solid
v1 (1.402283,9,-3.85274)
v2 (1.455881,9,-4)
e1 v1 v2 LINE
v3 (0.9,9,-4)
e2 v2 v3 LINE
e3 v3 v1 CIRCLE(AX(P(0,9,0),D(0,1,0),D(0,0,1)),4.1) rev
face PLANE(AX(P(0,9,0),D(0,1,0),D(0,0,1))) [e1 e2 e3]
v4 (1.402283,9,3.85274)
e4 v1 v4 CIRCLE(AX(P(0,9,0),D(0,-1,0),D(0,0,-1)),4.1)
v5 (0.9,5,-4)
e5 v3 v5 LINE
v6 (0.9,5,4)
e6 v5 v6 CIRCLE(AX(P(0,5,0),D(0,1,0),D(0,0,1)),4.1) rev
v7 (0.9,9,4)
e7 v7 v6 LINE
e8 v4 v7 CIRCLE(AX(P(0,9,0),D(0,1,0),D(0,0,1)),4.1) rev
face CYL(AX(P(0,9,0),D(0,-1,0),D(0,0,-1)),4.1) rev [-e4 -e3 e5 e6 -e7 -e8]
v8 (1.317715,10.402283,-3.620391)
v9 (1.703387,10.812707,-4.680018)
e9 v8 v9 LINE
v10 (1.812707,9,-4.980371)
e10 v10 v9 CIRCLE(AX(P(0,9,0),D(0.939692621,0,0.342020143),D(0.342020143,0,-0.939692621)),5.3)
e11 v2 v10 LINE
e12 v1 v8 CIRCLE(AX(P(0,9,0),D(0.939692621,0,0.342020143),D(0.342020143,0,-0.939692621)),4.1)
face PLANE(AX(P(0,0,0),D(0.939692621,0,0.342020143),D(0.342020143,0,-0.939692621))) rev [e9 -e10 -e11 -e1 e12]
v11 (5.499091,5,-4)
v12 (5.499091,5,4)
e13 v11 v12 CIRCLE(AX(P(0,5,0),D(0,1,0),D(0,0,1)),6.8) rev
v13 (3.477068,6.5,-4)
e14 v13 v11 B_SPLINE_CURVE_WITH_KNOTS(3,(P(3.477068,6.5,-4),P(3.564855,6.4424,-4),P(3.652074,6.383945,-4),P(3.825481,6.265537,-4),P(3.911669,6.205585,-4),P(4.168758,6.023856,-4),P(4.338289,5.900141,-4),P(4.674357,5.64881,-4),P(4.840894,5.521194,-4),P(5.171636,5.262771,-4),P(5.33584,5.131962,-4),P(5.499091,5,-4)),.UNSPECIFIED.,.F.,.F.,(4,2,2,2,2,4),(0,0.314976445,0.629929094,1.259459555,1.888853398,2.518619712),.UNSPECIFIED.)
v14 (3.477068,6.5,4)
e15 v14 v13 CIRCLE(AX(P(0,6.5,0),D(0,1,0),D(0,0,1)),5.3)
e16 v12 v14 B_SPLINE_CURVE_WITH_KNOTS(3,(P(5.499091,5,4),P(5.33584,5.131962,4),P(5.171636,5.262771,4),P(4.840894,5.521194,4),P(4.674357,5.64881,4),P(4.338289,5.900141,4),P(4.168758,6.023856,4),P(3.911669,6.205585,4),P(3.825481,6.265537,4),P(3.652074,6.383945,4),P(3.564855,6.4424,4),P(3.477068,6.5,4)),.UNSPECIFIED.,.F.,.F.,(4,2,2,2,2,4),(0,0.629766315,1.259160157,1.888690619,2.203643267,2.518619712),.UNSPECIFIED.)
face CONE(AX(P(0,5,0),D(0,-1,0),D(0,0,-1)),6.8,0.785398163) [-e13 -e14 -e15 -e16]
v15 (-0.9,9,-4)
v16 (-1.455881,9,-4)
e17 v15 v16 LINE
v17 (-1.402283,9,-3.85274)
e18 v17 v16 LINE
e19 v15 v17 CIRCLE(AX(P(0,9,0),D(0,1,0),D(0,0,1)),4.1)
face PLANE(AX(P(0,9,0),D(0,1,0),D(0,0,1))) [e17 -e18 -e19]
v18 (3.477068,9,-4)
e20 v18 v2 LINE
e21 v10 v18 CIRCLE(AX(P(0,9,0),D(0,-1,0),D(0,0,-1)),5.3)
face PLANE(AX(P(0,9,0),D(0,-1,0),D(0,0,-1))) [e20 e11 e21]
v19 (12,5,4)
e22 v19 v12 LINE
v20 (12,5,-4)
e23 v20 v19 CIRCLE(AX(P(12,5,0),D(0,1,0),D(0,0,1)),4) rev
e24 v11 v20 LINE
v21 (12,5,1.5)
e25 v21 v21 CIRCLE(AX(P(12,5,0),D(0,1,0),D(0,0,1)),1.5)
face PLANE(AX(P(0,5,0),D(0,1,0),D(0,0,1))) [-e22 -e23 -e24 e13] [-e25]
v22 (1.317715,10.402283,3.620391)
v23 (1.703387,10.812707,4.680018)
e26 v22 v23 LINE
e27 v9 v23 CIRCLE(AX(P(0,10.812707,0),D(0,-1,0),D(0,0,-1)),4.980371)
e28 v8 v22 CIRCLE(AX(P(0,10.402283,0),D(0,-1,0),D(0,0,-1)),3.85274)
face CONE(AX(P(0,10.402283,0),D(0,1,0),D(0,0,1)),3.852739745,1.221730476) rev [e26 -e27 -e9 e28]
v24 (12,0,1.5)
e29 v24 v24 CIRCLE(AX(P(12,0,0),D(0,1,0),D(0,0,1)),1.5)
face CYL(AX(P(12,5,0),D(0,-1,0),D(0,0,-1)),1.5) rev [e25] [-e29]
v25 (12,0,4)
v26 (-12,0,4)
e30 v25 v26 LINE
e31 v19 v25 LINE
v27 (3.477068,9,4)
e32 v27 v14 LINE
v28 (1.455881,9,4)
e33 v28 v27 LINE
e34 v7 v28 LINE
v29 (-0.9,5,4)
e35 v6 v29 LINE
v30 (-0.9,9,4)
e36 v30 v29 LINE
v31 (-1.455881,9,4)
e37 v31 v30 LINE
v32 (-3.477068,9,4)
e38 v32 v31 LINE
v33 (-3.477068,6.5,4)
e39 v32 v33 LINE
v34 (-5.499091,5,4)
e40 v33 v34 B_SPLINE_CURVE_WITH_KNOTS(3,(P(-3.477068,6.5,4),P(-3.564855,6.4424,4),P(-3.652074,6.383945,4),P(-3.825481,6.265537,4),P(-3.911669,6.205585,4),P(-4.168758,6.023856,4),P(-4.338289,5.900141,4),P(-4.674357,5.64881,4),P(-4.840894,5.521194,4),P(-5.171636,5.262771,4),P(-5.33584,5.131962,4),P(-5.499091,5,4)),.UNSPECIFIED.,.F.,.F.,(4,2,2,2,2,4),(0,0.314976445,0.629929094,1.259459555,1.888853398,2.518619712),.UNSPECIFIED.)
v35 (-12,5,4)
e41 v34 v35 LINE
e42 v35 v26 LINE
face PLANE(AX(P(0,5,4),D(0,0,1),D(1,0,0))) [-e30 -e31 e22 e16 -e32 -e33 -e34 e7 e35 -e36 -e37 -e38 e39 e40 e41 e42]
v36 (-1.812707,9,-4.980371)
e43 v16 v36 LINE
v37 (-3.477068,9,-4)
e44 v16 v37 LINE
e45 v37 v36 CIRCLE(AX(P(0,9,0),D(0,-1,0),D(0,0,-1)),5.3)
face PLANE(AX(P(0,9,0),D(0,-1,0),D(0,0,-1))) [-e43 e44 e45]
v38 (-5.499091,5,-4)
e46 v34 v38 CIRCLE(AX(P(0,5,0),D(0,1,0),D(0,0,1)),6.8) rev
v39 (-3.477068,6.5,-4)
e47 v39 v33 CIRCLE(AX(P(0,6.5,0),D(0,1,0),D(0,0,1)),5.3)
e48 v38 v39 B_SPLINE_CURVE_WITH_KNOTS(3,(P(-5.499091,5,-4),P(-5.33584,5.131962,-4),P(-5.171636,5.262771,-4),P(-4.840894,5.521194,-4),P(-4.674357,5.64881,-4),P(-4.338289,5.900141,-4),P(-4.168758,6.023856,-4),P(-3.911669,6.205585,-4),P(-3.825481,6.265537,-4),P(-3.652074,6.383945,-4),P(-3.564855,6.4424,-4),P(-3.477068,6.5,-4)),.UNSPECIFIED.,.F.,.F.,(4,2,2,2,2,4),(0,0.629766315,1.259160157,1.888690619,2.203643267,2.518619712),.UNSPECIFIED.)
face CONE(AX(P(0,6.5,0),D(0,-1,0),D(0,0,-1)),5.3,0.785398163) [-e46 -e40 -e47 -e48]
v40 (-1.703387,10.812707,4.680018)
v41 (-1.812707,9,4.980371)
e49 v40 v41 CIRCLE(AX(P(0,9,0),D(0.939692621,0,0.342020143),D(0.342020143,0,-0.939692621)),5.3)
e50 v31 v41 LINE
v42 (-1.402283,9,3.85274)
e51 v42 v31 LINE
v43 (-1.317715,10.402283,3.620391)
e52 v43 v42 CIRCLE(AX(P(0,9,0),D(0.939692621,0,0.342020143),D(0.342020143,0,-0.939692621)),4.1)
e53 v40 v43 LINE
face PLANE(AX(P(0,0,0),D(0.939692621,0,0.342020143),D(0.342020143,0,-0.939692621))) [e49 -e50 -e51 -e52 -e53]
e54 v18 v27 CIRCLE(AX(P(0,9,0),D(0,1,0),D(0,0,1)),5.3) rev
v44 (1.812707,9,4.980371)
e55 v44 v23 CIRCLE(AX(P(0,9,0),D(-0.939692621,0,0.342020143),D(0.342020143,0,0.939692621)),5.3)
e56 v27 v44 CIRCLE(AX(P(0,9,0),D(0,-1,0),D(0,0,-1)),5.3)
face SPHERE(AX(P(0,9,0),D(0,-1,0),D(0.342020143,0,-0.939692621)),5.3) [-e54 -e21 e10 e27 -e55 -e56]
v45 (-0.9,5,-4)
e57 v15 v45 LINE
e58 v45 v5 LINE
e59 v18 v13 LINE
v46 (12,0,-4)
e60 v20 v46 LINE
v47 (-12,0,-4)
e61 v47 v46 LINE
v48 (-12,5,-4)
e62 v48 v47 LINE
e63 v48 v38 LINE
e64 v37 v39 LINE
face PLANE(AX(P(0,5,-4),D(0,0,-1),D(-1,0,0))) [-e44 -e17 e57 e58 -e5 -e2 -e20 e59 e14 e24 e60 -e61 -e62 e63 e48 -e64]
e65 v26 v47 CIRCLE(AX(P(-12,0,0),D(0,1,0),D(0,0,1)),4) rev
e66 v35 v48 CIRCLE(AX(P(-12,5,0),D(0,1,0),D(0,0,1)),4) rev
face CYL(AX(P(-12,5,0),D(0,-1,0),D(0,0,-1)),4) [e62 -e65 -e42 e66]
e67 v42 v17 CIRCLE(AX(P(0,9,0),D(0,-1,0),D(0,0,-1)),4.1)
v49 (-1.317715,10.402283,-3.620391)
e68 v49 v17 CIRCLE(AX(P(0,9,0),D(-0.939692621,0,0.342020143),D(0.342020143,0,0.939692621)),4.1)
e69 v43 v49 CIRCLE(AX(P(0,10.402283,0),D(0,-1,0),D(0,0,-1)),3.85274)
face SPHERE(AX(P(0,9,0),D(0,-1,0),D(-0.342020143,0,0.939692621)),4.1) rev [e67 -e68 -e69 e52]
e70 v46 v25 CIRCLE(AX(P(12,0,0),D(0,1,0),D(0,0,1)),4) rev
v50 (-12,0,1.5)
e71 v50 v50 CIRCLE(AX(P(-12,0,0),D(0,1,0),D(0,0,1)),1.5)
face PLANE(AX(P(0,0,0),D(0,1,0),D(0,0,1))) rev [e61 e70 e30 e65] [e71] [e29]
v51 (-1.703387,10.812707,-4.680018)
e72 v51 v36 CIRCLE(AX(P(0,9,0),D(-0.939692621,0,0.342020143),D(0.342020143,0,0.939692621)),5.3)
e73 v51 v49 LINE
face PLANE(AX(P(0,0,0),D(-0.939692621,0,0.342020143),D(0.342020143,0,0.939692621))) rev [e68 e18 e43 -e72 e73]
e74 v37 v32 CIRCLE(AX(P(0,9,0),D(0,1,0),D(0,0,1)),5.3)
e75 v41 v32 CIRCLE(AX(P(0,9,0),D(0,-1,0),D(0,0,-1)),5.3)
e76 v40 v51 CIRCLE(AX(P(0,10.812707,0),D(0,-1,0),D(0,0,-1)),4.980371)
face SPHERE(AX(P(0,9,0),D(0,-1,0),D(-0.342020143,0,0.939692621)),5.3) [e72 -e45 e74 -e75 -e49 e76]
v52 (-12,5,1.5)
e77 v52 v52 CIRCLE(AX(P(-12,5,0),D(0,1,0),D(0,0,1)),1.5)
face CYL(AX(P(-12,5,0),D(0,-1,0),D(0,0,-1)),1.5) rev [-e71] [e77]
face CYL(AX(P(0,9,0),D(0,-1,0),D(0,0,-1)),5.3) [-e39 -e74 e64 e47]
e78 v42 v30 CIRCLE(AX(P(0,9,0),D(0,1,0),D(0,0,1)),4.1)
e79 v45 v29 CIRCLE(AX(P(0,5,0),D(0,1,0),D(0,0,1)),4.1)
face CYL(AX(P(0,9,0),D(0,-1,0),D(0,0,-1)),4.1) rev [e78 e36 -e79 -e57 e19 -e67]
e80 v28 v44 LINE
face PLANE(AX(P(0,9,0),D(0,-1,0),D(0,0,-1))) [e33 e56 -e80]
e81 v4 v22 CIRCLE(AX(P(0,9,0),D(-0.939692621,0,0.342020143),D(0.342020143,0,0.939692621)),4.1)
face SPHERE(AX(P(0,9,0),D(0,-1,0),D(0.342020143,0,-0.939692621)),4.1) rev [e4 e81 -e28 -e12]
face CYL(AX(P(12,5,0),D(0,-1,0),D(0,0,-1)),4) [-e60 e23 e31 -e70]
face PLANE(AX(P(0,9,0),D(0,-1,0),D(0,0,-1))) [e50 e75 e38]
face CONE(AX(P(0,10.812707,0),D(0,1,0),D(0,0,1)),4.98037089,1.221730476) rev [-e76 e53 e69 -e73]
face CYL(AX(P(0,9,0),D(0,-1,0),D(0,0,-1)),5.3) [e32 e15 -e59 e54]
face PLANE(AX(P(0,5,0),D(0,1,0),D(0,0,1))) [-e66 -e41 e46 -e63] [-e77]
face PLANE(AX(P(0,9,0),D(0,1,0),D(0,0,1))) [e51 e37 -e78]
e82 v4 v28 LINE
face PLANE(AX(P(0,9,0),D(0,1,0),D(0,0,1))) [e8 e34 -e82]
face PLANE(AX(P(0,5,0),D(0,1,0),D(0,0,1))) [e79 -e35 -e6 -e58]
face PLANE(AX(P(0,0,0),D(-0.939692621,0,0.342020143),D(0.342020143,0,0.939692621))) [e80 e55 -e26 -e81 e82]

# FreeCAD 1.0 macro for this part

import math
import FreeCAD as App
import Part
import Sketcher
Q = App.Units.Quantity


def edges_at(feature, points):
    """Names of the edges that pass closest to the given points."""
    edges = feature.Shape.Edges
    near = lambda p: min(range(len(edges)), key=lambda i: edges[i].distToShape(Part.Vertex(*p))[0])
    return sorted({f"Edge{near(p) + 1}" for p in points})

doc = App.newDocument("Part")
body = doc.addObject("PartDesign::Body", "Body")

sketch1 = body.newObject("Sketcher::SketchObject", "Sketch")
sketch1.AttachmentSupport = (doc.getObject("XZ_Plane"), [""])
sketch1.MapMode = "FlatFace"
sketch1.addGeometry([
    Part.LineSegment(App.Vector(12, -4, 0), App.Vector(-12, -4, 0)),
    Part.ArcOfCircle(Part.Circle(App.Vector(-12, 0, 0), App.Vector(0, 0, 1), 4), math.radians(90), math.radians(270)),
    Part.LineSegment(App.Vector(-12, 4, 0), App.Vector(12, 4, 0)),
    Part.ArcOfCircle(Part.Circle(App.Vector(12, 0, 0), App.Vector(0, 0, 1), 4), math.radians(-90), math.radians(90)),
    Part.Circle(App.Vector(12, 0, 0), App.Vector(0, 0, 1), 1.5),
    Part.Circle(App.Vector(-12, 0, 0), App.Vector(0, 0, 1), 1.5),
], False)
sketch1.addConstraint([
    Sketcher.Constraint("Tangent", 0, 2, 1, 2),
    Sketcher.Constraint("Tangent", 1, 1, 2, 1),
    Sketcher.Constraint("Tangent", 2, 2, 3, 2),
    Sketcher.Constraint("Tangent", 3, 1, 0, 1),
    Sketcher.Constraint("Horizontal", 0),
    Sketcher.Constraint("Horizontal", 2),
    Sketcher.Constraint("Coincident", 4, 3, 3, 3),
    Sketcher.Constraint("Coincident", 5, 3, 1, 3),
    Sketcher.Constraint("Equal", 4, 5),
    Sketcher.Constraint("Symmetric", 1, 3, 3, 3, -1, 1),
    Sketcher.Constraint("Diameter", 4, Q("3 mm")),
    Sketcher.Constraint("Radius", 1, Q("4 mm")),
    Sketcher.Constraint("DistanceX", 0, 2, 0, 1, Q("24 mm")),
])
pad1 = body.newObject("PartDesign::Pad", "Pad")
pad1.Profile = sketch1
pad1.Length = 5
pad1.Reversed = True

sketch2 = body.newObject("Sketcher::SketchObject", "Sketch001")
sketch2.AttachmentSupport = (doc.getObject("XZ_Plane"), [""])
sketch2.MapMode = "FlatFace"
sketch2.AttachmentOffset = App.Placement(App.Vector(0, 0, -5), App.Rotation())
sketch2.addGeometry([
    Part.LineSegment(App.Vector(-3.477068, 4, 0), App.Vector(-0.9, 4, 0)),
    Part.ArcOfCircle(Part.Circle(App.Vector(0, 0, 0), App.Vector(0, 0, 1), 4.1), math.radians(102.680383), math.radians(257.319617)),
    Part.LineSegment(App.Vector(-0.9, -4, 0), App.Vector(-3.477068, -4, 0)),
    Part.ArcOfCircle(Part.Circle(App.Vector(0, 0, 0), App.Vector(0, 0, 1), 5.3), math.radians(130.999354), math.radians(229.000646)),
    Part.LineSegment(App.Vector(0.9, 4, 0), App.Vector(3.477068, 4, 0)),
    Part.ArcOfCircle(Part.Circle(App.Vector(0, 0, 0), App.Vector(0, 0, 1), 5.3), math.radians(-49.000646), math.radians(49.000646)),
    Part.LineSegment(App.Vector(3.477068, -4, 0), App.Vector(0.9, -4, 0)),
    Part.ArcOfCircle(Part.Circle(App.Vector(0, 0, 0), App.Vector(0, 0, 1), 4.1), math.radians(-77.319617), math.radians(77.319617)),
], False)
sketch2.addConstraint([
    Sketcher.Constraint("Coincident", 0, 2, 1, 1),
    Sketcher.Constraint("Coincident", 1, 2, 2, 1),
    Sketcher.Constraint("Coincident", 2, 2, 3, 2),
    Sketcher.Constraint("Coincident", 3, 1, 0, 1),
    Sketcher.Constraint("Coincident", 4, 2, 5, 2),
    Sketcher.Constraint("Coincident", 5, 1, 6, 1),
    Sketcher.Constraint("Coincident", 6, 2, 7, 1),
    Sketcher.Constraint("Coincident", 7, 2, 4, 1),
    Sketcher.Constraint("Horizontal", 0),
    Sketcher.Constraint("Horizontal", 2),
    Sketcher.Constraint("Horizontal", 4),
    Sketcher.Constraint("Horizontal", 6),
    Sketcher.Constraint("Coincident", 1, 3, -1, 1),
    Sketcher.Constraint("Coincident", 3, 3, -1, 1),
    Sketcher.Constraint("Coincident", 5, 3, -1, 1),
    Sketcher.Constraint("Coincident", 7, 3, -1, 1),
    Sketcher.Constraint("Equal", 3, 5),
    Sketcher.Constraint("Equal", 1, 7),
    Sketcher.Constraint("Horizontal", 3, 1, 4, 2),
    Sketcher.Constraint("Horizontal", 2, 2, 5, 1),
    Sketcher.Constraint("Vertical", 0, 2, 1, 2),
    Sketcher.Constraint("Radius", 1, Q("4.1 mm")),
    Sketcher.Constraint("Radius", 3, Q("5.3 mm")),
    Sketcher.Constraint("DistanceY", -1, 1, 0, 2, Q("4 mm")),
])
pad2 = body.newObject("PartDesign::Pad", "Pad001")
pad2.Profile = sketch2
pad2.Length = 4
pad2.Reversed = True

sketch3 = body.newObject("Sketcher::SketchObject", "Sketch002")
sketch3.AttachmentSupport = (doc.getObject("XY_Plane"), [""])
sketch3.MapMode = "FlatFace"
sketch3.addGeometry([
    Part.LineSegment(App.Vector(4.1, 9, 0), App.Vector(5.3, 9, 0)),
    Part.ArcOfCircle(Part.Circle(App.Vector(0, 9, 0), App.Vector(0, 0, 1), 5.3), math.radians(0), math.radians(20)),
    Part.LineSegment(App.Vector(4.980371, 10.812707, 0), App.Vector(3.85274, 10.402283, 0)),
    Part.ArcOfCircle(Part.Circle(App.Vector(0, 9, 0), App.Vector(0, 0, 1), 4.1), math.radians(0), math.radians(20)),
], False)
sketch3.addConstraint([
    Sketcher.Constraint("Coincident", 0, 2, 1, 1),
    Sketcher.Constraint("Coincident", 1, 2, 2, 1),
    Sketcher.Constraint("Coincident", 2, 2, 3, 2),
    Sketcher.Constraint("Coincident", 3, 1, 0, 1),
    Sketcher.Constraint("Horizontal", 0),
    Sketcher.Constraint("Coincident", 3, 3, 1, 3),
    Sketcher.Constraint("PointOnObject", 1, 3, -2),
    Sketcher.Constraint("Horizontal", 3, 3, 0, 2),
    Sketcher.Constraint("Radius", 1, Q("5.3 mm")),
    Sketcher.Constraint("Radius", 3, Q("4.1 mm")),
    Sketcher.Constraint("Angle", 2, Q("-160 deg")),
    Sketcher.Constraint("DistanceY", -1, 1, 1, 3, Q("9 mm")),
    Sketcher.Constraint("DistanceX", -1, 1, 1, 2, Q("4.980371 mm")),
])
revolution = body.newObject("PartDesign::Revolution", "Revolution")
revolution.Profile = sketch3
revolution.ReferenceAxis = (sketch3, ["V_Axis"])
revolution.Angle = 70

sketch4 = body.newObject("Sketcher::SketchObject", "Sketch003")
sketch4.AttachmentSupport = (doc.getObject("XY_Plane"), [""])
sketch4.MapMode = "FlatFace"
sketch4.addGeometry([
    Part.LineSegment(App.Vector(4.1, 9, 0), App.Vector(5.3, 9, 0)),
    Part.ArcOfCircle(Part.Circle(App.Vector(0, 9, 0), App.Vector(0, 0, 1), 5.3), math.radians(0), math.radians(20)),
    Part.LineSegment(App.Vector(4.980371, 10.812707, 0), App.Vector(3.85274, 10.402283, 0)),
    Part.ArcOfCircle(Part.Circle(App.Vector(0, 9, 0), App.Vector(0, 0, 1), 4.1), math.radians(0), math.radians(20)),
], False)
sketch4.addConstraint([
    Sketcher.Constraint("Coincident", 0, 2, 1, 1),
    Sketcher.Constraint("Coincident", 1, 2, 2, 1),
    Sketcher.Constraint("Coincident", 2, 2, 3, 2),
    Sketcher.Constraint("Coincident", 3, 1, 0, 1),
    Sketcher.Constraint("Horizontal", 0),
    Sketcher.Constraint("Coincident", 3, 3, 1, 3),
    Sketcher.Constraint("PointOnObject", 1, 3, -2),
    Sketcher.Constraint("Horizontal", 3, 3, 0, 2),
    Sketcher.Constraint("Radius", 1, Q("5.3 mm")),
    Sketcher.Constraint("Radius", 3, Q("4.1 mm")),
    Sketcher.Constraint("Angle", 2, Q("-160 deg")),
    Sketcher.Constraint("DistanceY", -1, 1, 1, 3, Q("9 mm")),
    Sketcher.Constraint("DistanceX", -1, 1, 1, 2, Q("4.980371 mm")),
])
revolution2 = body.newObject("PartDesign::Revolution", "Revolution001")
revolution2.Profile = sketch4
revolution2.ReferenceAxis = (sketch4, ["V_Axis"])
revolution2.Angle = 70
revolution2.Reversed = True

sketch5 = body.newObject("Sketcher::SketchObject", "Sketch004")
sketch5.AttachmentSupport = (doc.getObject("XY_Plane"), [""])
sketch5.MapMode = "FlatFace"
sketch5.addGeometry([
    Part.LineSegment(App.Vector(-5.3, 9, 0), App.Vector(-4.1, 9, 0)),
    Part.ArcOfCircle(Part.Circle(App.Vector(0, 9, 0), App.Vector(0, 0, 1), 4.1), math.radians(160), math.radians(180)),
    Part.LineSegment(App.Vector(-3.85274, 10.402283, 0), App.Vector(-4.980371, 10.812707, 0)),
    Part.ArcOfCircle(Part.Circle(App.Vector(0, 9, 0), App.Vector(0, 0, 1), 5.3), math.radians(160), math.radians(180)),
], False)
sketch5.addConstraint([
    Sketcher.Constraint("Coincident", 0, 2, 1, 2),
    Sketcher.Constraint("Coincident", 1, 1, 2, 1),
    Sketcher.Constraint("Coincident", 2, 2, 3, 1),
    Sketcher.Constraint("Coincident", 3, 2, 0, 1),
    Sketcher.Constraint("Horizontal", 0),
    Sketcher.Constraint("Coincident", 3, 3, 1, 3),
    Sketcher.Constraint("PointOnObject", 1, 3, -2),
    Sketcher.Constraint("Horizontal", 3, 3, 0, 2),
    Sketcher.Constraint("Radius", 1, Q("4.1 mm")),
    Sketcher.Constraint("Radius", 3, Q("5.3 mm")),
    Sketcher.Constraint("Angle", 2, Q("160 deg")),
    Sketcher.Constraint("DistanceY", -1, 1, 1, 3, Q("9 mm")),
    Sketcher.Constraint("DistanceX", 1, 1, -1, 1, Q("3.85274 mm")),
])
revolution3 = body.newObject("PartDesign::Revolution", "Revolution002")
revolution3.Profile = sketch5
revolution3.ReferenceAxis = (sketch5, ["V_Axis"])
revolution3.Angle = 70

sketch6 = body.newObject("Sketcher::SketchObject", "Sketch005")
sketch6.AttachmentSupport = (doc.getObject("XY_Plane"), [""])
sketch6.MapMode = "FlatFace"
sketch6.addGeometry([
    Part.LineSegment(App.Vector(-5.3, 9, 0), App.Vector(-4.1, 9, 0)),
    Part.ArcOfCircle(Part.Circle(App.Vector(0, 9, 0), App.Vector(0, 0, 1), 4.1), math.radians(160), math.radians(180)),
    Part.LineSegment(App.Vector(-3.85274, 10.402283, 0), App.Vector(-4.980371, 10.812707, 0)),
    Part.ArcOfCircle(Part.Circle(App.Vector(0, 9, 0), App.Vector(0, 0, 1), 5.3), math.radians(160), math.radians(180)),
], False)
sketch6.addConstraint([
    Sketcher.Constraint("Coincident", 0, 2, 1, 2),
    Sketcher.Constraint("Coincident", 1, 1, 2, 1),
    Sketcher.Constraint("Coincident", 2, 2, 3, 1),
    Sketcher.Constraint("Coincident", 3, 2, 0, 1),
    Sketcher.Constraint("Horizontal", 0),
    Sketcher.Constraint("Coincident", 3, 3, 1, 3),
    Sketcher.Constraint("PointOnObject", 1, 3, -2),
    Sketcher.Constraint("Horizontal", 3, 3, 0, 2),
    Sketcher.Constraint("Radius", 1, Q("4.1 mm")),
    Sketcher.Constraint("Radius", 3, Q("5.3 mm")),
    Sketcher.Constraint("Angle", 2, Q("160 deg")),
    Sketcher.Constraint("DistanceY", -1, 1, 1, 3, Q("9 mm")),
    Sketcher.Constraint("DistanceX", 1, 1, -1, 1, Q("3.85274 mm")),
])
revolution4 = body.newObject("PartDesign::Revolution", "Revolution003")
revolution4.Profile = sketch6
revolution4.ReferenceAxis = (sketch6, ["V_Axis"])
revolution4.Angle = 70
revolution4.Reversed = True
doc.recompute()

chamfer = body.newObject("PartDesign::Chamfer", "Chamfer")
chamfer.Base = (revolution4, edges_at(revolution4, [(-5.3, 5, 0), (5.3, 5, 0)]))
chamfer.Size = 1.5

doc.recompute()
